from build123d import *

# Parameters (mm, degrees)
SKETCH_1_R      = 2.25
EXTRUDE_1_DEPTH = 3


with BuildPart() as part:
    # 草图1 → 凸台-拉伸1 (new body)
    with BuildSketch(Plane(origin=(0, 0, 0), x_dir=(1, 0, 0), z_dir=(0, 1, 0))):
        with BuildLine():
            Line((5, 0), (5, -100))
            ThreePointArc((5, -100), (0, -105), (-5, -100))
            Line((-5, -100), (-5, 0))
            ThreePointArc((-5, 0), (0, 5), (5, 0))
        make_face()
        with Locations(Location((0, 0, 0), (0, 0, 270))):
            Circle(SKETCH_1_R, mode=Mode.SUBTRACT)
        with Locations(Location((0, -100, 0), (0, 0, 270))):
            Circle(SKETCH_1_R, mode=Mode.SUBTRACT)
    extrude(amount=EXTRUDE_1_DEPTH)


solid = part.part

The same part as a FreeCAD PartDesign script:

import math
import FreeCAD as App
import Part
import Sketcher

V = App.Vector
Q = App.Units.Quantity

doc = App.newDocument("Part")
body = doc.addObject("PartDesign::Body", "Body")

# Sketch on XZ plane
sketch1 = doc.addObject("Sketcher::SketchObject", "Sketch")
body.addObject(sketch1)
sketch1.AttachmentSupport = (doc.XZ_Plane, [""])
sketch1.MapMode = "FlatFace"
sketch1.addGeometry(Part.LineSegment(V(5, 100, 0), V(5, 0, 0)), False)
sketch1.addGeometry(Part.ArcOfCircle(Part.Circle(V(0, 0, 0), V(0, 0, 1), 5), math.radians(180), math.radians(360)), False)
sketch1.addGeometry(Part.LineSegment(V(-5, 0, 0), V(-5, 100, 0)), False)
sketch1.addGeometry(Part.ArcOfCircle(Part.Circle(V(0, 100, 0), V(0, 0, 1), 5), math.radians(0), math.radians(180)), False)
sketch1.addGeometry(Part.Circle(V(0, 100, 0), V(0, 0, 1), 2.2), False)
sketch1.addGeometry(Part.Circle(V(0, 0, 0), V(0, 0, 1), 2.2), False)
sketch1.addConstraint(Sketcher.Constraint("Tangent", 0, 2, 1, 2))
sketch1.addConstraint(Sketcher.Constraint("Tangent", 1, 1, 2, 1))
sketch1.addConstraint(Sketcher.Constraint("Tangent", 2, 2, 3, 2))
sketch1.addConstraint(Sketcher.Constraint("Tangent", 3, 1, 0, 1))
sketch1.addConstraint(Sketcher.Constraint("Vertical", 0))
sketch1.addConstraint(Sketcher.Constraint("Vertical", 2))
sketch1.addConstraint(Sketcher.Constraint("Coincident", 1, 3, -1, 1))
sketch1.addConstraint(Sketcher.Constraint("Coincident", 5, 3, -1, 1))
sketch1.addConstraint(Sketcher.Constraint("Coincident", 4, 3, 3, 3))
sketch1.addConstraint(Sketcher.Constraint("Equal", 4, 5))
sketch1.addConstraint(Sketcher.Constraint("Radius", 1, Q("5 mm")))
sketch1.addConstraint(Sketcher.Constraint("Diameter", 4, Q("4.5 mm")))
sketch1.addConstraint(Sketcher.Constraint("DistanceY", 0, 2, 0, 1, Q("100 mm")))
pad1 = doc.addObject("PartDesign::Pad", "Pad")
body.addObject(pad1)
pad1.Profile = sketch1
pad1.Length = 3
pad1.Reversed = True

doc.recompute()
